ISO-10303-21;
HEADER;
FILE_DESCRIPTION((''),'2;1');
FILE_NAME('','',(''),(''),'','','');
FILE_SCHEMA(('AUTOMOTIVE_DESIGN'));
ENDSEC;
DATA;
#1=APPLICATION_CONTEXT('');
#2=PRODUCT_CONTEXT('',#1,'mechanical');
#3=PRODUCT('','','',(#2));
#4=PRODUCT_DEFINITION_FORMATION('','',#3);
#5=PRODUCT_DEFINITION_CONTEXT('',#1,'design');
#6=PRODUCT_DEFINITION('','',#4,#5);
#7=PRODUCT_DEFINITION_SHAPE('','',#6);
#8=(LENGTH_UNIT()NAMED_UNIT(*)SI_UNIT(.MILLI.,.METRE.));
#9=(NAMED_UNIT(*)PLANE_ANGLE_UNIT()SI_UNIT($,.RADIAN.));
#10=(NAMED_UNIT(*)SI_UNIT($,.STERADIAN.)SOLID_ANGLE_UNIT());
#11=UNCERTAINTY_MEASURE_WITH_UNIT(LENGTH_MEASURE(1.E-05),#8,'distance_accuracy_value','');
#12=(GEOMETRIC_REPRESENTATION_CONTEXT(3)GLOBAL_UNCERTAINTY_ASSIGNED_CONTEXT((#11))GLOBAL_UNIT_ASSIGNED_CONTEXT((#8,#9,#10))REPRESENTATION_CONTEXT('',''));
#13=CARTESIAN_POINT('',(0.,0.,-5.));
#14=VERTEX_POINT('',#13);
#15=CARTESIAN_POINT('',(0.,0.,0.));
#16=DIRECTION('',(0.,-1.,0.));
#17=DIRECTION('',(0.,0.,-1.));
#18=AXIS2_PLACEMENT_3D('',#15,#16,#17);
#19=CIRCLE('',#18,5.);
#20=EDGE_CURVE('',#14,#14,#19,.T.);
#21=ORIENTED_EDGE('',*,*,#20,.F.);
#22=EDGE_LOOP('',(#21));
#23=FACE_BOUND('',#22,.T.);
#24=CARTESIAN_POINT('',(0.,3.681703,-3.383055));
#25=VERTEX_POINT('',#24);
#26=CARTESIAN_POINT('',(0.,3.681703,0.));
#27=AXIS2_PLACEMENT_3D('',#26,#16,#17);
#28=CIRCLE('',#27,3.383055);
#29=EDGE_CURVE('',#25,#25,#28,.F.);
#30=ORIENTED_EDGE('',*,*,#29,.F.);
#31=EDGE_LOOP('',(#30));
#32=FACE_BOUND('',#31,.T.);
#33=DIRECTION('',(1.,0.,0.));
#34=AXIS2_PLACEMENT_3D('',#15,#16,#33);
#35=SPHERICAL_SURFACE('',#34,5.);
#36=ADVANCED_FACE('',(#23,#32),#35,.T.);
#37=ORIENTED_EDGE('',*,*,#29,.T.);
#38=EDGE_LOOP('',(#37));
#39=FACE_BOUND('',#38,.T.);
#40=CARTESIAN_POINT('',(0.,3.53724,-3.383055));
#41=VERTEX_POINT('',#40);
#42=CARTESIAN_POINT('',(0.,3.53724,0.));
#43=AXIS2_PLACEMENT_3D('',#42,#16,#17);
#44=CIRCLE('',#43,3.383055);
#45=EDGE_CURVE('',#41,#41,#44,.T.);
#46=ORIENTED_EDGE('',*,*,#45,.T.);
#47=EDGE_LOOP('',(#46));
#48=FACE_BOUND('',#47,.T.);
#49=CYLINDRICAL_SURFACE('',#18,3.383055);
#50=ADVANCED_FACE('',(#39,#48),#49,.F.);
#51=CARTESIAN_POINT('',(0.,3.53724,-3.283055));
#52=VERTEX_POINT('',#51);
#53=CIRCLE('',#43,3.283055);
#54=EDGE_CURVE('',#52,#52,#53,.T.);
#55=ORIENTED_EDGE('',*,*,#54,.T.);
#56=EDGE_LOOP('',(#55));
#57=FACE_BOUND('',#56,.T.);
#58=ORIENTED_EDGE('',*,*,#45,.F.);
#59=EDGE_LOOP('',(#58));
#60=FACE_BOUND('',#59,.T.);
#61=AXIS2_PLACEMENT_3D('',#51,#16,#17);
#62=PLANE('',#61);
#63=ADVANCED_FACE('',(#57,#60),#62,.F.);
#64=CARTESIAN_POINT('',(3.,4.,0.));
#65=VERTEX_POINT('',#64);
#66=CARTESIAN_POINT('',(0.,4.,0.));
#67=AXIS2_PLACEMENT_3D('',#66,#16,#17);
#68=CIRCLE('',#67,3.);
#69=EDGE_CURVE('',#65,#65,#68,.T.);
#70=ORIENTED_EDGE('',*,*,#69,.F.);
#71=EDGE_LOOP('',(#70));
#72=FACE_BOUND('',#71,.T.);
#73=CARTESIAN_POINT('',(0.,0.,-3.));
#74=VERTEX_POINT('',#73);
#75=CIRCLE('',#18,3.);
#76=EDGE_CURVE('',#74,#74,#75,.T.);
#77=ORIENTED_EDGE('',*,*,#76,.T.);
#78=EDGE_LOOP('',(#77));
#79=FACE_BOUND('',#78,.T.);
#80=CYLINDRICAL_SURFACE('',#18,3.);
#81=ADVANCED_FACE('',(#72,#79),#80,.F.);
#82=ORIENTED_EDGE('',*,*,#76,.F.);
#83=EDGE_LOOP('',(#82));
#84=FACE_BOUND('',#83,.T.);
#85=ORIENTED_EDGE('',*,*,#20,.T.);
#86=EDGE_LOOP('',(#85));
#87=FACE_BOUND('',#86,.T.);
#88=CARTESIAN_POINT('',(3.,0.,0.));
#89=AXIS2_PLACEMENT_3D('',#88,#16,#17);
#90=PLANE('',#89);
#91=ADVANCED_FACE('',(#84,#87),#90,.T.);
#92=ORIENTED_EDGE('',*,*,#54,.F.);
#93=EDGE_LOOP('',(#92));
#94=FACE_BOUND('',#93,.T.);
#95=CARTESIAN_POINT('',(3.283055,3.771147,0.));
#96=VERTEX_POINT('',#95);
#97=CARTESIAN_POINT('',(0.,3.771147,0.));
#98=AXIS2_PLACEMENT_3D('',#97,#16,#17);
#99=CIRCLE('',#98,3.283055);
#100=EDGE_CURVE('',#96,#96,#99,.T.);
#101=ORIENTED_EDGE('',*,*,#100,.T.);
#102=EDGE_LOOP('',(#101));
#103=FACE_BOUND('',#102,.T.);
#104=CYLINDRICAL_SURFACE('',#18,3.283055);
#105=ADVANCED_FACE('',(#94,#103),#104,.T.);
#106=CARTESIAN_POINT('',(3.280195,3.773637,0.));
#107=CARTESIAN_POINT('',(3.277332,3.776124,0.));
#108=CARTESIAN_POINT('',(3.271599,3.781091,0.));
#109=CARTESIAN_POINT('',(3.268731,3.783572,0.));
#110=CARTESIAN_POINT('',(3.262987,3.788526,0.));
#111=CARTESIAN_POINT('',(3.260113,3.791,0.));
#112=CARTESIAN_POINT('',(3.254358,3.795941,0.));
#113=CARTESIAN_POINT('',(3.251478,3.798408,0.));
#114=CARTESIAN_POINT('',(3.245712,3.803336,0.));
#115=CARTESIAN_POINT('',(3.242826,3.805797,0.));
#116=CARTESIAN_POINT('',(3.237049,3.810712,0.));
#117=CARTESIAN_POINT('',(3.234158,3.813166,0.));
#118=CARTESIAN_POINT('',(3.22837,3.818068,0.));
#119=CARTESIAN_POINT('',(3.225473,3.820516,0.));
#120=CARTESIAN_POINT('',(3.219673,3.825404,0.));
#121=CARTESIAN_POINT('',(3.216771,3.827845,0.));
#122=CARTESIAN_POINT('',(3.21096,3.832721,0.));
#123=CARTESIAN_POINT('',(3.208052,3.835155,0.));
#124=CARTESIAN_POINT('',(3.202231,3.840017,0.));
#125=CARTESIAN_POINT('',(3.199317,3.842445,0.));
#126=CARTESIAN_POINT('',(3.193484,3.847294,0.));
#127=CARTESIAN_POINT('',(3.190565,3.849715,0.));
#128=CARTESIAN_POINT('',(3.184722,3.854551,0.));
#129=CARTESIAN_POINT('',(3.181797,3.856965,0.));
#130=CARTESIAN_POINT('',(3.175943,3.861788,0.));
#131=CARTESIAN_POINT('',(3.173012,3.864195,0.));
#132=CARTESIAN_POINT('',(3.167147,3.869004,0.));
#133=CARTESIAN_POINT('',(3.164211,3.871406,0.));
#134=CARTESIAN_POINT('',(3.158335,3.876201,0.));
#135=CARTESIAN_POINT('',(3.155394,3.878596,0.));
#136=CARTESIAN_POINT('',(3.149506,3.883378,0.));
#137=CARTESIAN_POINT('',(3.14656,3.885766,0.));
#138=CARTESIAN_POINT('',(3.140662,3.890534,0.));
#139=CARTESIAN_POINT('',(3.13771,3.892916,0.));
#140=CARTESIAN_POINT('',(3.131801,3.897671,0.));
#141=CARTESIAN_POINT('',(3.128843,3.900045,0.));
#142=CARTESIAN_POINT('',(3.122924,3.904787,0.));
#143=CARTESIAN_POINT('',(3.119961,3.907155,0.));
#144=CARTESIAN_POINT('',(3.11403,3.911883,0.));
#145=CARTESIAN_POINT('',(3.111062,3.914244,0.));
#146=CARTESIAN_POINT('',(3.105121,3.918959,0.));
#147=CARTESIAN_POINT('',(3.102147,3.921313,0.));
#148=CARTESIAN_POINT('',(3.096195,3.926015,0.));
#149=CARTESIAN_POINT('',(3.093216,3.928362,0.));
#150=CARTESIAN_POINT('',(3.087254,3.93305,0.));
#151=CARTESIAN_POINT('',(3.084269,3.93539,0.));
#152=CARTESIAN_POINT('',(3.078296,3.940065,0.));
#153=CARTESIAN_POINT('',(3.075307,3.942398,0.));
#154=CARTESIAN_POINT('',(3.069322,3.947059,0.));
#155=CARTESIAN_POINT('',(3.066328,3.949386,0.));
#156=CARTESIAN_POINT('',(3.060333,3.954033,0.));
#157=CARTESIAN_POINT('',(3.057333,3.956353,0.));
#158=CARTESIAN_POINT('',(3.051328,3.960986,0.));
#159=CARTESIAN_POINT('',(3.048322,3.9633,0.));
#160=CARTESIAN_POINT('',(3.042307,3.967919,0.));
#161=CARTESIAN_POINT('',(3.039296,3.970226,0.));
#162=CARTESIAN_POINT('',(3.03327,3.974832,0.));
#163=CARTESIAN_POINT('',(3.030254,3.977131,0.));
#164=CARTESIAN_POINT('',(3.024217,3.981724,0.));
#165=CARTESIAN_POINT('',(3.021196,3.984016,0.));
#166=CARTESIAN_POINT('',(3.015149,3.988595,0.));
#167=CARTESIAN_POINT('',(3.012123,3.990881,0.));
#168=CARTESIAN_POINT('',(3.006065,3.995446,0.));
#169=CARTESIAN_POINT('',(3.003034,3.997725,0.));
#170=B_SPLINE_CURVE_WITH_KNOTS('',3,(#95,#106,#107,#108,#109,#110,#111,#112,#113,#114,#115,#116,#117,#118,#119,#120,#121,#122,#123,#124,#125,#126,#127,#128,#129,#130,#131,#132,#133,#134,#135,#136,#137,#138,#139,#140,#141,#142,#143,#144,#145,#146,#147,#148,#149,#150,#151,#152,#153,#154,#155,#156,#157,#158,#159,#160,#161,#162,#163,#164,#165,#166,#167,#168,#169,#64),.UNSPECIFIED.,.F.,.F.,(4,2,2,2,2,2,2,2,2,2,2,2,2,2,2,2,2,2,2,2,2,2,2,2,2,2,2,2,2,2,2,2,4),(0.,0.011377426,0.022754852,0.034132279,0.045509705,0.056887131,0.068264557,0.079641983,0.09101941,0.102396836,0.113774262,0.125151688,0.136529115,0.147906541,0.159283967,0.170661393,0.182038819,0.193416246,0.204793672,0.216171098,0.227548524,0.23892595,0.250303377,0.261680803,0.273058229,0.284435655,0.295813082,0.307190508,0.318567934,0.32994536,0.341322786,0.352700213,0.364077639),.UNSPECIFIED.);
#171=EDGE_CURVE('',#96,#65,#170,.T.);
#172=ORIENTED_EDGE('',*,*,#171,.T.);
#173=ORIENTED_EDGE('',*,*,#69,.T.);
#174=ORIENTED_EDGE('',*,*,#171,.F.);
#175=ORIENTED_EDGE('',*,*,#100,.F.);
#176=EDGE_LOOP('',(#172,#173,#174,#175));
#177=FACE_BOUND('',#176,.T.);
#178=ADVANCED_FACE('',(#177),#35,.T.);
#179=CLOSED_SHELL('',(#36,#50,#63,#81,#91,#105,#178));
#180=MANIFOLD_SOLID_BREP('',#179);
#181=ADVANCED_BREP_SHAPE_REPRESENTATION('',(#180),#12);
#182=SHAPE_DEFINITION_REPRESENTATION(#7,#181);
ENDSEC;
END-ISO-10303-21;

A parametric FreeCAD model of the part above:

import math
import FreeCAD as App
import Part
import Sketcher

V = App.Vector
Q = App.Units.Quantity

doc = App.newDocument("Part")
body = doc.addObject("PartDesign::Body", "Body")

# Sketch on XY plane
sketch1 = body.newObject("Sketcher::SketchObject", "Sketch")
sketch1.AttachmentSupport = (doc.getObject("XY_Plane"), [""])
sketch1.MapMode = "FlatFace"
sketch1.addGeometry([
    Part.LineSegment(V(3, 4, 0), V(3, 0, 0)),
    Part.LineSegment(V(3, 0, 0), V(5, 0, 0)),
    Part.ArcOfCircle(Part.Circle(V(0, 0, 0), V(0, 0, 1), 5), math.radians(0), math.radians(53)),
], False)
sketch1.addConstraint([
    Sketcher.Constraint("Coincident", 0, 2, 1, 1),
    Sketcher.Constraint("Coincident", 1, 2, 2, 1),
    Sketcher.Constraint("Coincident", 2, 2, 0, 1),
    Sketcher.Constraint("Vertical", 0),
    Sketcher.Constraint("Horizontal", 1),
    Sketcher.Constraint("Coincident", 2, 3, -1, 1),
    Sketcher.Constraint("PointOnObject", 0, 2, -1),
    Sketcher.Constraint("Radius", 2, Q("5 mm")),
    Sketcher.Constraint("DistanceX", 1, 1, 1, 2, Q("2 mm")),
])
revolution = body.newObject("PartDesign::Revolution", "Revolution")
revolution.Profile = sketch1
revolution.ReferenceAxis = (sketch1, ["V_Axis"])
revolution.Angle = 360

# Sketch on YZ plane
sketch2 = body.newObject("Sketcher::SketchObject", "Sketch001")
sketch2.AttachmentSupport = (doc.getObject("YZ_Plane"), [""])
sketch2.MapMode = "FlatFace"
sketch2.addGeometry([
    Part.LineSegment(V(3.54, -3.28, 0), V(3.54, -3.38, 0)),
    Part.LineSegment(V(3.54, -3.38, 0), V(3.92, -3.38, 0)),
    Part.LineSegment(V(3.92, -3.38, 0), V(3.92, -3.28, 0)),
    Part.LineSegment(V(3.92, -3.28, 0), V(3.54, -3.28, 0)),
], False)
sketch2.addConstraint([
    Sketcher.Constraint("Coincident", 0, 2, 1, 1),
    Sketcher.Constraint("Coincident", 1, 2, 2, 1),
    Sketcher.Constraint("Coincident", 2, 2, 3, 1),
    Sketcher.Constraint("Coincident", 3, 2, 0, 1),
    Sketcher.Constraint("Vertical", 0),
    Sketcher.Constraint("Horizontal", 1),
    Sketcher.Constraint("Vertical", 2),
    Sketcher.Constraint("Horizontal", 3),
    Sketcher.Constraint("DistanceY", 0, 2, 0, 1, Q("0.1 mm")),
    Sketcher.Constraint("DistanceX", 1, 1, 1, 2, Q("0.378128 mm")),
    Sketcher.Constraint("DistanceX", -1, 1, 0, 2, Q("3.53724 mm")),
    Sketcher.Constraint("DistanceY", 0, 2, -1, 1, Q("3.383055 mm")),
])
groove = body.newObject("PartDesign::Groove", "Groove")
groove.Profile = sketch2
groove.ReferenceAxis = (sketch2, ["H_Axis"])
groove.Angle = 360

doc.recompute()
